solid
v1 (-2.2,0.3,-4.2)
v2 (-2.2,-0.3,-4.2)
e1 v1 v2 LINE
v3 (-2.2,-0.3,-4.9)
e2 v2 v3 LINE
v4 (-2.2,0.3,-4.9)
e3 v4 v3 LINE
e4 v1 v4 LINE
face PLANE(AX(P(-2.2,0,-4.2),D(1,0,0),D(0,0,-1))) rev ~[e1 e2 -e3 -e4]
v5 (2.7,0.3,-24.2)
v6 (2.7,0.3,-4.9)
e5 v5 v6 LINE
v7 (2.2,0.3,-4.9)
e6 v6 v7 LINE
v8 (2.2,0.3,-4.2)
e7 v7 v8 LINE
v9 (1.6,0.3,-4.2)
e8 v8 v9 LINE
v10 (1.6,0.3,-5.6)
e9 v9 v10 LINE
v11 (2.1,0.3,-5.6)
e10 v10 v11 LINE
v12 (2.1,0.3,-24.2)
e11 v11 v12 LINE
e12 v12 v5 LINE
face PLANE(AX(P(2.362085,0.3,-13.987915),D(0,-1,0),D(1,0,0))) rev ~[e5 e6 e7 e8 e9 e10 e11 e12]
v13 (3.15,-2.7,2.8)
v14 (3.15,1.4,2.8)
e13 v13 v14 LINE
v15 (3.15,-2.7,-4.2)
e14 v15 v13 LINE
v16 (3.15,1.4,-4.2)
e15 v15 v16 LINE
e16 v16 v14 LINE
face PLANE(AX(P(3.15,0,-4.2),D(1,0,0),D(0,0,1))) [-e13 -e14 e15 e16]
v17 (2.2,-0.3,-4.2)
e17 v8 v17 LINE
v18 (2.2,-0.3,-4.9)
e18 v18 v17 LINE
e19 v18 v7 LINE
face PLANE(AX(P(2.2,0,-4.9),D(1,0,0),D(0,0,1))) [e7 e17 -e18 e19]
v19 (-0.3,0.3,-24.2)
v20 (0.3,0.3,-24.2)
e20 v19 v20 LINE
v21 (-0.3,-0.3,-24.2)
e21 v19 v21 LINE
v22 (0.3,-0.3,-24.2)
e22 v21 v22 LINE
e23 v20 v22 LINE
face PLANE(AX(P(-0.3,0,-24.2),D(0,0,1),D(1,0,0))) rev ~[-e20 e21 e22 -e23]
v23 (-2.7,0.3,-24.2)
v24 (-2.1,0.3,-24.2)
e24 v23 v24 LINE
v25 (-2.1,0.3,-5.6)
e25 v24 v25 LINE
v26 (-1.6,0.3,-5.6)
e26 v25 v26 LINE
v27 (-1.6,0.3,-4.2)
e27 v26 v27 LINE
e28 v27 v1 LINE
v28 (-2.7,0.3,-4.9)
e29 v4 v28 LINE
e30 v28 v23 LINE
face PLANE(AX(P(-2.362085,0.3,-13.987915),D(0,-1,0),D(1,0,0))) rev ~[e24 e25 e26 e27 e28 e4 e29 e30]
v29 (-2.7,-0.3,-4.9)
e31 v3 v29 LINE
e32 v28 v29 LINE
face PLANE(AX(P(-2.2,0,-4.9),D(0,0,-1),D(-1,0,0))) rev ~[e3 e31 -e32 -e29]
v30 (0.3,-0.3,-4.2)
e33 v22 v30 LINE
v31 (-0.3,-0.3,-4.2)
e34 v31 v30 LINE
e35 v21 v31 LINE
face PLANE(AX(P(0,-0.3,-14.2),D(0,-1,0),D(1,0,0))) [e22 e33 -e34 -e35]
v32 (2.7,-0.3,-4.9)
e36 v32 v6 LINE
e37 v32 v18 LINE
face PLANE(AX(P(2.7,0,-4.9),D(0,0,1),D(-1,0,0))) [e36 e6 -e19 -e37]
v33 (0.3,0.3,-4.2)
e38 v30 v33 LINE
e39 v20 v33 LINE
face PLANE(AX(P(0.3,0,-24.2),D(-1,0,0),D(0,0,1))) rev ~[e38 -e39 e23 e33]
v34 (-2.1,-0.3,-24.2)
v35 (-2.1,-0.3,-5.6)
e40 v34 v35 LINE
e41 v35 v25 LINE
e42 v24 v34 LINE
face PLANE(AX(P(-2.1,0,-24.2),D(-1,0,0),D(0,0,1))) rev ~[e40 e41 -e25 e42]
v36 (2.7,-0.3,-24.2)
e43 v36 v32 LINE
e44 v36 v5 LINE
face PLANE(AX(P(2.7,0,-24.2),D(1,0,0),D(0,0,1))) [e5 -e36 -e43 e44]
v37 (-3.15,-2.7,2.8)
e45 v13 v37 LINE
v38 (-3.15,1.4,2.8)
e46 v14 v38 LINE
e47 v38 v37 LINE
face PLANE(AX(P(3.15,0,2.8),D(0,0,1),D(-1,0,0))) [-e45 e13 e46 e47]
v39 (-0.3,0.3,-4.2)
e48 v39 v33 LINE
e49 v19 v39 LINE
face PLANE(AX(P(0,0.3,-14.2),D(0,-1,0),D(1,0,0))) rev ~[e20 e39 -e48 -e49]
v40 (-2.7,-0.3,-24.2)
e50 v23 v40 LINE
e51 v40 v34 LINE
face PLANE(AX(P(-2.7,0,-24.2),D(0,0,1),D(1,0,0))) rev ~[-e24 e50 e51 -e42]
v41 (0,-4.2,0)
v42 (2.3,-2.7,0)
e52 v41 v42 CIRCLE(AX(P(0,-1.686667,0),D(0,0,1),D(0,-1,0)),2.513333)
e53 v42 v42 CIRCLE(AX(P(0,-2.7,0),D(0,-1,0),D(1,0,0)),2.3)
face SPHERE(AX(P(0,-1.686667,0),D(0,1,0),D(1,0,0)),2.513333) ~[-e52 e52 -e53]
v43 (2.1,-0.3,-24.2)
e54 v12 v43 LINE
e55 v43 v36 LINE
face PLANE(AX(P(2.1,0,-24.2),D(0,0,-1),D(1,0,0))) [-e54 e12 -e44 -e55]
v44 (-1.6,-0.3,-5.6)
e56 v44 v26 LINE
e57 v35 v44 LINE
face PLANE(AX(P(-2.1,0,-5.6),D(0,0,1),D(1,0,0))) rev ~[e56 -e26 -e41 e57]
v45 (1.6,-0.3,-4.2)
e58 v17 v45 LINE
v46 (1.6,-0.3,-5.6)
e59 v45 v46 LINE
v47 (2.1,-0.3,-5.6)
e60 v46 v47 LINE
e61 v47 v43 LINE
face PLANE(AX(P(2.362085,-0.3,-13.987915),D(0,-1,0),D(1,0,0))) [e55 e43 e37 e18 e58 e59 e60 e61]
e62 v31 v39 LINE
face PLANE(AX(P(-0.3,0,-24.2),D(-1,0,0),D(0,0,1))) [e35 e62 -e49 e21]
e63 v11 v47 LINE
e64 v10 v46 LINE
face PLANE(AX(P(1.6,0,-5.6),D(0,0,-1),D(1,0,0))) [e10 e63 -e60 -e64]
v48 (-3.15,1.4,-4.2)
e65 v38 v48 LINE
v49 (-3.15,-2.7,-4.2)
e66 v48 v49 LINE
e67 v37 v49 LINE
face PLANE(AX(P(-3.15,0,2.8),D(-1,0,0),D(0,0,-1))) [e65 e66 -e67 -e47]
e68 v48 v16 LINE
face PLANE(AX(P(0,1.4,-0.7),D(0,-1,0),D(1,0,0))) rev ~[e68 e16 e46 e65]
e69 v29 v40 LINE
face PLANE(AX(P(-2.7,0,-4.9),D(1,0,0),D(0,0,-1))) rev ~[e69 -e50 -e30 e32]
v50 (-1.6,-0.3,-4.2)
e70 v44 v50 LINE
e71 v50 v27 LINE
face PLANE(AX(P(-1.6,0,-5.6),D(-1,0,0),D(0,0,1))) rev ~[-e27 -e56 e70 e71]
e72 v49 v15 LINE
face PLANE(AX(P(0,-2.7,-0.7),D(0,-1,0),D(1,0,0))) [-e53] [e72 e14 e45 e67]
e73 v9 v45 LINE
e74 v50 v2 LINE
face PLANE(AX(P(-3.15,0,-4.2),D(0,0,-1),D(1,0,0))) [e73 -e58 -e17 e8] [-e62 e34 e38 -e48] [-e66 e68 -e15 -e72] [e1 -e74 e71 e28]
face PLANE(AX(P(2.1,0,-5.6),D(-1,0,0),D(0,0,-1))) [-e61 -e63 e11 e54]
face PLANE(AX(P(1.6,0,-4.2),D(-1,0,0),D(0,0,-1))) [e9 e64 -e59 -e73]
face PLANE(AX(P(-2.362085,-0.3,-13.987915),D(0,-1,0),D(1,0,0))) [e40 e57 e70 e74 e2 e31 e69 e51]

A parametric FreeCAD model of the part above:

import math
import FreeCAD as App
import Part
import Sketcher

V = App.Vector

doc = App.newDocument("Part")
body = doc.addObject("PartDesign::Body", "Body")

sketch1 = body.newObject("Sketcher::SketchObject", "Sketch")
sketch1.AttachmentSupport = (doc.getObject("XZ_Plane"), [""])
sketch1.MapMode = "FlatFace"
sketch1.addGeometry(Part.LineSegment(V(3, 3, 0), V(-3, 3, 0)), False)
sketch1.addGeometry(Part.LineSegment(V(-3, 3, 0), V(-3, -4, 0)), False)
sketch1.addGeometry(Part.LineSegment(V(-3, -4, 0), V(3, -4, 0)), False)
sketch1.addGeometry(Part.LineSegment(V(3, -4, 0), V(3, 3, 0)), False)
sketch1.addConstraint(Sketcher.Constraint("Coincident", 0, 2, 1, 1))
sketch1.addConstraint(Sketcher.Constraint("Coincident", 1, 2, 2, 1))
sketch1.addConstraint(Sketcher.Constraint("Coincident", 2, 2, 3, 1))
sketch1.addConstraint(Sketcher.Constraint("Coincident", 3, 2, 0, 1))
sketch1.addConstraint(Sketcher.Constraint("Horizontal", 0))
sketch1.addConstraint(Sketcher.Constraint("Vertical", 1))
sketch1.addConstraint(Sketcher.Constraint("Horizontal", 2))
sketch1.addConstraint(Sketcher.Constraint("Vertical", 3))
sketch1.addConstraint(Sketcher.Constraint("DistanceY", 1, 2, 1, 1, 7.0))
sketch1.addConstraint(Sketcher.Constraint("DistanceX", 0, 2, 0, 1, 6.3))
sketch1.addConstraint(Sketcher.Constraint("DistanceY", -1, 1, 0, 2, 2.8))
sketch1.addConstraint(Sketcher.Constraint("DistanceX", 0, 2, -1, 1, 3.15))
pad1 = body.newObject("PartDesign::Pad", "Pad")
pad1.Profile = sketch1
pad1.Type = "TwoLengths"
pad1.Length = 2.7
pad1.Length2 = 1.4

sketch2 = body.newObject("Sketcher::SketchObject", "Sketch001")
sketch2.AttachmentSupport = (doc.getObject("XZ_Plane"), [""])
sketch2.MapMode = "FlatFace"
sketch2.addGeometry(Part.LineSegment(V(-1.6, -4.2, 0), V(-2.2, -4.2, 0)), False)
sketch2.addGeometry(Part.LineSegment(V(-2.2, -4.2, 0), V(-2.2, -4.9, 0)), False)
sketch2.addGeometry(Part.LineSegment(V(-2.2, -4.9, 0), V(-2.7, -4.9, 0)), False)
sketch2.addGeometry(Part.LineSegment(V(-2.7, -4.9, 0), V(-2.7, -24.2, 0)), False)
sketch2.addGeometry(Part.LineSegment(V(-2.7, -24.2, 0), V(-2.1, -24.2, 0)), False)
sketch2.addGeometry(Part.LineSegment(V(-2.1, -24.2, 0), V(-2.1, -5.6, 0)), False)
sketch2.addGeometry(Part.LineSegment(V(-2.1, -5.6, 0), V(-1.6, -5.6, 0)), False)
sketch2.addGeometry(Part.LineSegment(V(-1.6, -5.6, 0), V(-1.6, -4.2, 0)), False)
sketch2.addGeometry(Part.LineSegment(V(-0.3, -4.2, 0), V(-0.3, -24.2, 0)), False)
sketch2.addGeometry(Part.LineSegment(V(-0.3, -24.2, 0), V(0.3, -24.2, 0)), False)
sketch2.addGeometry(Part.LineSegment(V(0.3, -24.2, 0), V(0.3, -4.2, 0)), False)
sketch2.addGeometry(Part.LineSegment(V(0.3, -4.2, 0), V(-0.3, -4.2, 0)), False)
sketch2.addGeometry(Part.LineSegment(V(2.2, -4.9, 0), V(2.2, -4.2, 0)), False)
sketch2.addGeometry(Part.LineSegment(V(2.2, -4.2, 0), V(1.6, -4.2, 0)), False)
sketch2.addGeometry(Part.LineSegment(V(1.6, -4.2, 0), V(1.6, -5.6, 0)), False)
sketch2.addGeometry(Part.LineSegment(V(1.6, -5.6, 0), V(2.1, -5.6, 0)), False)
sketch2.addGeometry(Part.LineSegment(V(2.1, -5.6, 0), V(2.1, -24.2, 0)), False)
sketch2.addGeometry(Part.LineSegment(V(2.1, -24.2, 0), V(2.7, -24.2, 0)), False)
sketch2.addGeometry(Part.LineSegment(V(2.7, -24.2, 0), V(2.7, -4.9, 0)), False)
sketch2.addGeometry(Part.LineSegment(V(2.7, -4.9, 0), V(2.2, -4.9, 0)), False)
sketch2.addConstraint(Sketcher.Constraint("Coincident", 0, 2, 1, 1))
sketch2.addConstraint(Sketcher.Constraint("Coincident", 1, 2, 2, 1))
sketch2.addConstraint(Sketcher.Constraint("Coincident", 2, 2, 3, 1))
sketch2.addConstraint(Sketcher.Constraint("Coincident", 3, 2, 4, 1))
sketch2.addConstraint(Sketcher.Constraint("Coincident", 4, 2, 5, 1))
sketch2.addConstraint(Sketcher.Constraint("Coincident", 5, 2, 6, 1))
sketch2.addConstraint(Sketcher.Constraint("Coincident", 6, 2, 7, 1))
sketch2.addConstraint(Sketcher.Constraint("Coincident", 7, 2, 0, 1))
sketch2.addConstraint(Sketcher.Constraint("Coincident", 8, 2, 9, 1))
sketch2.addConstraint(Sketcher.Constraint("Coincident", 9, 2, 10, 1))
sketch2.addConstraint(Sketcher.Constraint("Coincident", 10, 2, 11, 1))
sketch2.addConstraint(Sketcher.Constraint("Coincident", 11, 2, 8, 1))
sketch2.addConstraint(Sketcher.Constraint("Coincident", 12, 2, 13, 1))
sketch2.addConstraint(Sketcher.Constraint("Coincident", 13, 2, 14, 1))
sketch2.addConstraint(Sketcher.Constraint("Coincident", 14, 2, 15, 1))
sketch2.addConstraint(Sketcher.Constraint("Coincident", 15, 2, 16, 1))
sketch2.addConstraint(Sketcher.Constraint("Coincident", 16, 2, 17, 1))
sketch2.addConstraint(Sketcher.Constraint("Coincident", 17, 2, 18, 1))
sketch2.addConstraint(Sketcher.Constraint("Coincident", 18, 2, 19, 1))
sketch2.addConstraint(Sketcher.Constraint("Coincident", 19, 2, 12, 1))
sketch2.addConstraint(Sketcher.Constraint("Horizontal", 0))
sketch2.addConstraint(Sketcher.Constraint("Vertical", 1))
sketch2.addConstraint(Sketcher.Constraint("Horizontal", 2))
sketch2.addConstraint(Sketcher.Constraint("Vertical", 3))
sketch2.addConstraint(Sketcher.Constraint("Horizontal", 4))
sketch2.addConstraint(Sketcher.Constraint("Vertical", 5))
sketch2.addConstraint(Sketcher.Constraint("Horizontal", 6))
sketch2.addConstraint(Sketcher.Constraint("Vertical", 7))
sketch2.addConstraint(Sketcher.Constraint("Vertical", 8))
sketch2.addConstraint(Sketcher.Constraint("Horizontal", 9))
sketch2.addConstraint(Sketcher.Constraint("Vertical", 10))
sketch2.addConstraint(Sketcher.Constraint("Horizontal", 11))
sketch2.addConstraint(Sketcher.Constraint("Vertical", 12))
sketch2.addConstraint(Sketcher.Constraint("Horizontal", 13))
sketch2.addConstraint(Sketcher.Constraint("Vertical", 14))
sketch2.addConstraint(Sketcher.Constraint("Horizontal", 15))
sketch2.addConstraint(Sketcher.Constraint("Vertical", 16))
sketch2.addConstraint(Sketcher.Constraint("Horizontal", 17))
sketch2.addConstraint(Sketcher.Constraint("Vertical", 18))
sketch2.addConstraint(Sketcher.Constraint("Horizontal", 19))
sketch2.addConstraint(Sketcher.Constraint("Symmetric", 0, 2, 12, 2, -2))
sketch2.addConstraint(Sketcher.Constraint("Symmetric", 6, 2, 14, 2, -2))
sketch2.addConstraint(Sketcher.Constraint("Symmetric", 4, 2, 16, 2, -2))
sketch2.addConstraint(Sketcher.Constraint("Symmetric", 2, 2, 18, 2, -2))
sketch2.addConstraint(Sketcher.Constraint("Horizontal", 4, 2, 8, 2))
sketch2.addConstraint(Sketcher.Constraint("Horizontal", 7, 2, 10, 2))
sketch2.addConstraint(Sketcher.Constraint("Equal", 0, 4))
sketch2.addConstraint(Sketcher.Constraint("Equal", 4, 9))
sketch2.addConstraint(Sketcher.Constraint("DistanceY", 8, 2, 8, 1, 20.0))
sketch2.addConstraint(Sketcher.Constraint("DistanceX", 0, 2, 0, 1, 0.6))
sketch2.addConstraint(Sketcher.Constraint("DistanceX", 2, 2, 2, 1, 0.5))
sketch2.addConstraint(Sketcher.Constraint("DistanceY", 1, 2, 1, 1, 0.7))
sketch2.addConstraint(Sketcher.Constraint("DistanceY", 5, 1, 5, 2, 18.6))
sketch2.addConstraint(Sketcher.Constraint("DistanceX", 3, 2, 9, 2, 3.0))
sketch2.addConstraint(Sketcher.Constraint("DistanceX", 8, 2, 17, 2, 3.0))
sketch2.addConstraint(Sketcher.Constraint("DistanceY", 0, 2, -1, 1, 4.2))
pad2 = body.newObject("PartDesign::Pad", "Pad001")
pad2.Profile = sketch2
pad2.Length = 0.6
pad2.Midplane = True

sketch3 = body.newObject("Sketcher::SketchObject", "Sketch002")
sketch3.AttachmentSupport = (doc.getObject("XY_Plane"), [""])
sketch3.MapMode = "FlatFace"
sketch3.addGeometry(Part.ArcOfCircle(Part.Circle(V(0, -1.7, 0), V(0, 0, 1), 2.5), math.radians(-90), math.radians(-24)), False)
sketch3.addGeometry(Part.LineSegment(V(2.3, -2.7, 0), V(0, -2.7, 0)), False)
sketch3.addGeometry(Part.LineSegment(V(0, -2.7, 0), V(0, -4.2, 0)), False)
sketch3.addConstraint(Sketcher.Constraint("Coincident", 0, 2, 1, 1))
sketch3.addConstraint(Sketcher.Constraint("Coincident", 1, 2, 2, 1))
sketch3.addConstraint(Sketcher.Constraint("Coincident", 2, 2, 0, 1))
sketch3.addConstraint(Sketcher.Constraint("Horizontal", 1))
sketch3.addConstraint(Sketcher.Constraint("Vertical", 2))
sketch3.addConstraint(Sketcher.Constraint("PointOnObject", 0, 3, -2))
sketch3.addConstraint(Sketcher.Constraint("PointOnObject", 1, 2, -2))
sketch3.addConstraint(Sketcher.Constraint("DistanceX", 1, 2, 1, 1, 2.3))
sketch3.addConstraint(Sketcher.Constraint("DistanceY", 2, 2, 2, 1, 1.5))
sketch3.addConstraint(Sketcher.Constraint("DistanceY", 0, 2, -1, 1, 2.7))
revolution = body.newObject("PartDesign::Revolution", "Revolution")
revolution.Profile = sketch3
revolution.ReferenceAxis = (sketch3, ["V_Axis"])
revolution.Angle = 360

doc.recompute()
